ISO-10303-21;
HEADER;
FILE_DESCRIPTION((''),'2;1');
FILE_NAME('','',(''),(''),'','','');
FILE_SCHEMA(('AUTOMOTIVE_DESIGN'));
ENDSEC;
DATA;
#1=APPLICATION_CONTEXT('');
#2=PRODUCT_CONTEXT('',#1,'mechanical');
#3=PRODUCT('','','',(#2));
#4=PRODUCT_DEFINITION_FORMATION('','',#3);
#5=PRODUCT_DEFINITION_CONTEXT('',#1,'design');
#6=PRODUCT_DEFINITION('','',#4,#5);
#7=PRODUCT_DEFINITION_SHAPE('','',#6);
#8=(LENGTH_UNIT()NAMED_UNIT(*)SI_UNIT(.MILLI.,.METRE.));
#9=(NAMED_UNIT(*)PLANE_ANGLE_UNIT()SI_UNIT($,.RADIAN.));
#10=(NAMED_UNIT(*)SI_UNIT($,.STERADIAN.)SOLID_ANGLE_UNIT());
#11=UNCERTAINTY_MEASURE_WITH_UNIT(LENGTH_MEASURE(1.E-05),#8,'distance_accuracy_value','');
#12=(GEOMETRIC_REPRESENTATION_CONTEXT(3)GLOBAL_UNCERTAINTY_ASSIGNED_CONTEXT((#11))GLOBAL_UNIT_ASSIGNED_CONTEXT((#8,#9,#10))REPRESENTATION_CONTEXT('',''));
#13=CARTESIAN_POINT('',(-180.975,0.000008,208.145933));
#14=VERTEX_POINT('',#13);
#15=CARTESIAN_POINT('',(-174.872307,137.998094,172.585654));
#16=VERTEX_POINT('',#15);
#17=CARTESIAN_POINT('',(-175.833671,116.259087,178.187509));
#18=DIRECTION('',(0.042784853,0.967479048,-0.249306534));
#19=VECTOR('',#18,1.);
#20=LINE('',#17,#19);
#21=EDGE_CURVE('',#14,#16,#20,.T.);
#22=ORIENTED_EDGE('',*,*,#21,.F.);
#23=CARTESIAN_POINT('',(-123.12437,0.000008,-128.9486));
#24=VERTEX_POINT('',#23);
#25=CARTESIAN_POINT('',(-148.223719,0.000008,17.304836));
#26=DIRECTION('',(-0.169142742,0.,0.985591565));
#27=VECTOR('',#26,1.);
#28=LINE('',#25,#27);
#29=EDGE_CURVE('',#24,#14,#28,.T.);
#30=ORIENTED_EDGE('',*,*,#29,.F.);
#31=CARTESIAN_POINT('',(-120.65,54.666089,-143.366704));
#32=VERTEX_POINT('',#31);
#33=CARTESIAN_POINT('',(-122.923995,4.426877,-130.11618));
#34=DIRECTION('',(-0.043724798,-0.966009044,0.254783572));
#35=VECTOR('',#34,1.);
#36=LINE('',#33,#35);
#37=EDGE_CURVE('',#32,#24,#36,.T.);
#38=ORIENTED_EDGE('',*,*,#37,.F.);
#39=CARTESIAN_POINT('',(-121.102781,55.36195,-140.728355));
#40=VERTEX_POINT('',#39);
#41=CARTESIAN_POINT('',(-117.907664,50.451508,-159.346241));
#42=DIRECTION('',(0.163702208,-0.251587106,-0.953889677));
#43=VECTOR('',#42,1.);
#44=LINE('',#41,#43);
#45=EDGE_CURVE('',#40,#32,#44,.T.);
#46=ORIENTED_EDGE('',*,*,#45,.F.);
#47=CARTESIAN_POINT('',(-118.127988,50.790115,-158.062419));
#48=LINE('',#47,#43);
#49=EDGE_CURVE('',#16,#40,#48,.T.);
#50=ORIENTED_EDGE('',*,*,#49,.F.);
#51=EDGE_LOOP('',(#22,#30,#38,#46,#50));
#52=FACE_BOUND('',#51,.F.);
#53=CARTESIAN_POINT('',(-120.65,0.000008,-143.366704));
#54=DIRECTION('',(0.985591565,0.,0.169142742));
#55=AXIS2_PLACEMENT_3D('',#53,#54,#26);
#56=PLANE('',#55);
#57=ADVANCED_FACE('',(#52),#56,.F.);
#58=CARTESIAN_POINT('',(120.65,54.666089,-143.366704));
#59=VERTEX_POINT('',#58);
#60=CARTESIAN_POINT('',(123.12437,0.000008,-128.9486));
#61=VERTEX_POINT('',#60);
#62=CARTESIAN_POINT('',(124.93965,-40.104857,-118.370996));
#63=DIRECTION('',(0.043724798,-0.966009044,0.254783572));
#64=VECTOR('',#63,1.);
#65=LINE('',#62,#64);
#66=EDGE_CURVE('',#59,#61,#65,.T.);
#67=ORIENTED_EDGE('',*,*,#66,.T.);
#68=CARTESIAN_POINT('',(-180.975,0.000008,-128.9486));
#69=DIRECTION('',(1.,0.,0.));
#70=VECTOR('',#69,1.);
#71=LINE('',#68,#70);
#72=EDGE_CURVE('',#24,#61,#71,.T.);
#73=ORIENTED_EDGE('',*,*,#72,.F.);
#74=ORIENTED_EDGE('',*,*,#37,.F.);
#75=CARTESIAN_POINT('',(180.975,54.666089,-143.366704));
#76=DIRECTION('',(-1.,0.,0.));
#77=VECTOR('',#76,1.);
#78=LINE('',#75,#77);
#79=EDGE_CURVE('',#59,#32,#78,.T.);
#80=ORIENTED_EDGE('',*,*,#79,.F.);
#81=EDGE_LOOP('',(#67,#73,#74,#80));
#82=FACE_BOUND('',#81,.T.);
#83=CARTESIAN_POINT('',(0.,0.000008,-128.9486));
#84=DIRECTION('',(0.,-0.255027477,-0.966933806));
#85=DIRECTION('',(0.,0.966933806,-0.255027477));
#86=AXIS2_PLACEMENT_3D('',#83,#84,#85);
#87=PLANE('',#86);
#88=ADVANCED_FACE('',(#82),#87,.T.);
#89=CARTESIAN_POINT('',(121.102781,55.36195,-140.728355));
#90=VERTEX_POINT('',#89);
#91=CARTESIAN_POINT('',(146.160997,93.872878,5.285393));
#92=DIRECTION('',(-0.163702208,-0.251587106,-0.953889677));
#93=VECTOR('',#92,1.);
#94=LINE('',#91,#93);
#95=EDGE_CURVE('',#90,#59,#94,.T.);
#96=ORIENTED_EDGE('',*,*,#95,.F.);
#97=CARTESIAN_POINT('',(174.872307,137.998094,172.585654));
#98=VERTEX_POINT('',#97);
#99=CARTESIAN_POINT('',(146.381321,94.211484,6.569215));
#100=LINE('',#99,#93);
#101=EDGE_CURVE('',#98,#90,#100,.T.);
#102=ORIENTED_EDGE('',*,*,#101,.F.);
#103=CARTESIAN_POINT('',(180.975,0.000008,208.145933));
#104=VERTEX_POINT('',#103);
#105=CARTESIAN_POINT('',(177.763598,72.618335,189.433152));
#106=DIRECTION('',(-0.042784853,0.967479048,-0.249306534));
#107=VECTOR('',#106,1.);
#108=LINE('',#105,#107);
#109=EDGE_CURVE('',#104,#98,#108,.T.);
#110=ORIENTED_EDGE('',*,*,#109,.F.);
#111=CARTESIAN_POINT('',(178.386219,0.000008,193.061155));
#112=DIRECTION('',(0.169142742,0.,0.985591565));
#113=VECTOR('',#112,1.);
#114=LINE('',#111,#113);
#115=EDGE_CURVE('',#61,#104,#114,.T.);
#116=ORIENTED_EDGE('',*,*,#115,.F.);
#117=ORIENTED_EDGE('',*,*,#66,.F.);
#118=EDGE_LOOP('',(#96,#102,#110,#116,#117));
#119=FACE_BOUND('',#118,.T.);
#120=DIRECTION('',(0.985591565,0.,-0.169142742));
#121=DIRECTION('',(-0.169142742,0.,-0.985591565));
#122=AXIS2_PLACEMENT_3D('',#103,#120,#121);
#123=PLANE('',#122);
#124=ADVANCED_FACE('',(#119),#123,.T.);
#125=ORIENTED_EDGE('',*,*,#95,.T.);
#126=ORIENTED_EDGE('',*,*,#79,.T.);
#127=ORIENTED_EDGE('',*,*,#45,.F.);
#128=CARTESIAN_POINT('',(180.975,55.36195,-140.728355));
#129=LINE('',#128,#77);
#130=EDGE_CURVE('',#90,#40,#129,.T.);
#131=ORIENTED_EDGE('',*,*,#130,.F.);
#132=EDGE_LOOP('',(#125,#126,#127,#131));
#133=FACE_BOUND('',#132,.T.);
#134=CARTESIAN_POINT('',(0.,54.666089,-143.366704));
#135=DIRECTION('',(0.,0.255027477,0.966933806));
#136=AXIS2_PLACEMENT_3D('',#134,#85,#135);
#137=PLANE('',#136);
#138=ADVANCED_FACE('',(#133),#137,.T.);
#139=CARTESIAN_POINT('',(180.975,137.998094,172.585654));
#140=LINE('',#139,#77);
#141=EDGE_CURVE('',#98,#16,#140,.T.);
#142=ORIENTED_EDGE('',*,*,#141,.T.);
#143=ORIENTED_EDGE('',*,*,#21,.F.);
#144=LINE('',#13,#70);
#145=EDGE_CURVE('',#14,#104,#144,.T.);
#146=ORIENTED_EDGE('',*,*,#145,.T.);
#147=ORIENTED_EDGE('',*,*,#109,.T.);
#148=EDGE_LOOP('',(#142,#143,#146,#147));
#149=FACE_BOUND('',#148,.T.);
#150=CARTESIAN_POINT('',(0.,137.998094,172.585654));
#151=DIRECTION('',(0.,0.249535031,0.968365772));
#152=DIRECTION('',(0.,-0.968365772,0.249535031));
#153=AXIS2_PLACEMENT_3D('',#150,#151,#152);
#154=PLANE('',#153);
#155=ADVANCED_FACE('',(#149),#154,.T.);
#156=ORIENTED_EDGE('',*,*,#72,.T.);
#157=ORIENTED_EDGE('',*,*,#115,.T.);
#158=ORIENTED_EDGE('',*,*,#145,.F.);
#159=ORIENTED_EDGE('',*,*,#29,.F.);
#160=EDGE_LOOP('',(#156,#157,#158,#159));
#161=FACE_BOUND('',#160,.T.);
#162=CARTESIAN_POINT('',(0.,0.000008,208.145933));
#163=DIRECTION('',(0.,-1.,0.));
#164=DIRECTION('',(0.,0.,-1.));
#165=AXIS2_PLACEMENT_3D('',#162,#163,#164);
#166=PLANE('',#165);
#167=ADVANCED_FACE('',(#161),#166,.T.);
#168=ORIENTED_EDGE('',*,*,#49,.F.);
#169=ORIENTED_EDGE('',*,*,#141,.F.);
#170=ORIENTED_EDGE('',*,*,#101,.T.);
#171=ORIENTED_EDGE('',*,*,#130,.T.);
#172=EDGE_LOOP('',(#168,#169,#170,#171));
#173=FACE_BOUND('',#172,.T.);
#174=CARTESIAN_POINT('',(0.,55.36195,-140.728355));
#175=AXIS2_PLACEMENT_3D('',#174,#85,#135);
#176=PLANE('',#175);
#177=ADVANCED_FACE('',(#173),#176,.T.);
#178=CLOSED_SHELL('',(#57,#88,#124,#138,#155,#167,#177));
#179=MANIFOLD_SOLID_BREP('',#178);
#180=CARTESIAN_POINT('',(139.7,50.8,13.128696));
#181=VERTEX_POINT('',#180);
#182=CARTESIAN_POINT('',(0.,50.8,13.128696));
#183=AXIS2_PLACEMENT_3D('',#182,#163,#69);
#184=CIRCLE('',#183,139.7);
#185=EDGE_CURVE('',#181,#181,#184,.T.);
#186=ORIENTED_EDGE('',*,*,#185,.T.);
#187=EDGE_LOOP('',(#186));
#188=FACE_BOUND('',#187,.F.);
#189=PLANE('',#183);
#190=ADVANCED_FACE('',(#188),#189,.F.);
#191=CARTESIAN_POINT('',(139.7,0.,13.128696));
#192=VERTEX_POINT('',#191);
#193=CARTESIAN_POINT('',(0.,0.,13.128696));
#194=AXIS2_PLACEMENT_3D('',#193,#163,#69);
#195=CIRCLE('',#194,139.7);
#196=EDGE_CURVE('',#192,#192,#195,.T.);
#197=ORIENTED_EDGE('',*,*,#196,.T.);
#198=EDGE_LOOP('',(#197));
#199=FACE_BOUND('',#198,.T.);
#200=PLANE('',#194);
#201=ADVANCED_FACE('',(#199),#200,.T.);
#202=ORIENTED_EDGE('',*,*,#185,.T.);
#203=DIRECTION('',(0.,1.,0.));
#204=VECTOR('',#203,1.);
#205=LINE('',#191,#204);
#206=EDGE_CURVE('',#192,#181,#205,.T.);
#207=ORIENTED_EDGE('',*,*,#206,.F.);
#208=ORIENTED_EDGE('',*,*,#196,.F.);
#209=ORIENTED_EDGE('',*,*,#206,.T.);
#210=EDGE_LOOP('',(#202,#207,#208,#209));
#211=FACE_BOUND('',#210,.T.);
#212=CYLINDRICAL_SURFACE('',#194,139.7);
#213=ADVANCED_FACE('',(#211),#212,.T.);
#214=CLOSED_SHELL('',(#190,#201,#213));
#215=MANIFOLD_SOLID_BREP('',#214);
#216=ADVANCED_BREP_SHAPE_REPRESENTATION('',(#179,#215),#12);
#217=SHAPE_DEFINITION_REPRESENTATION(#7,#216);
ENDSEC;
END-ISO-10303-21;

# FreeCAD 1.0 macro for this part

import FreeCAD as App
import Part
import Sketcher

V = App.Vector
Q = App.Units.Quantity


def add_polygon(sketch, points):
    """Adds a closed chain of lines whose ends are joined by coincident constraints."""
    first, n = sketch.GeometryCount, len(points)
    for a, b in zip(points, points[1:] + points[:1]):
        sketch.addGeometry(Part.LineSegment(App.Vector(*a, 0), App.Vector(*b, 0)), False)
    for i in range(n):
        sketch.addConstraint(Sketcher.Constraint("Coincident", first + i, 2, first + (i + 1) % n, 1))

doc = App.newDocument("Part")
body = doc.addObject("PartDesign::Body", "Body")

sketch1 = body.newObject("Sketcher::SketchObject", "Sketch")
sketch1.AttachmentSupport = (doc.getObject("YZ_Plane"), [""])
sketch1.MapMode = "FlatFace"
add_polygon(sketch1, [(96.7012, 199.12078), (-41.296887, 234.681059), (-41.296887, -102.413474), (13.369194, -116.831578), (14.065055, -114.193229)])
sketch1.addConstraint([
    Sketcher.Constraint("Vertical", 1),
    Sketcher.Constraint("Perpendicular", 2, 3),
    Sketcher.Constraint("Parallel", 3, 4),
    Sketcher.Constraint("Angle", 0, Q("165.550001 deg")),
    Sketcher.Constraint("DistanceX", -1, 1, 4, 2, Q("96.7012 mm")),
    Sketcher.Constraint("Distance", 0, Q("142.506159 mm")),
    Sketcher.Constraint("DistanceY", 1, 2, 1, 1, Q("337.094533 mm")),
    Sketcher.Constraint("DistanceY", -1, 1, 0, 2, Q("234.681059 mm")),
    Sketcher.Constraint("DistanceY", 2, 2, -1, 1, Q("116.831578 mm")),
    Sketcher.Constraint("DistanceY", 3, 2, -1, 1, Q("114.193229 mm")),
])
pad1 = body.newObject("PartDesign::Pad", "Pad")
pad1.Profile = sketch1
pad1.Length = Q("14.25 in")
pad1.Midplane = True
body2 = doc.addObject("PartDesign::Body", "Body001")
doc.recompute()

body.Placement = App.Placement(V(0, 41.296895, -26.535126), App.Rotation(V(0, 0, 1), 0))
boolean = body2.newObject("PartDesign::Boolean", "Boolean")
boolean.Type = "Fuse"
boolean.addObjects([body])

sketch2 = body2.newObject("Sketcher::SketchObject", "Sketch001")
sketch2.AttachmentSupport = (doc.getObject("XZ_Plane001"), [""])
sketch2.MapMode = "FlatFace"
sketch2.AttachmentOffset = App.Placement(V(0, 0, -0.000008), App.Rotation())
add_polygon(sketch2, [(180.975, 208.145933), (120.65, -143.366704), (410.697224, -143.366704)])
add_polygon(sketch2, [(-410.697224, -143.366704), (-120.65, -143.366704), (-180.975, 208.145933)])
sketch2.addConstraint([
    Sketcher.Constraint("Horizontal", 1),
    Sketcher.Constraint("Horizontal", 3),
    Sketcher.Constraint("Symmetric", 0, 2, 3, 2, -2),
    Sketcher.Constraint("Symmetric", 2, 2, 4, 2, -2),
    Sketcher.Constraint("Equal", 1, 3),
    Sketcher.Constraint("DistanceX", 3, 2, 0, 2, Q("9.5 in")),
    Sketcher.Constraint("DistanceX", 4, 2, 2, 2, Q("14.25 in")),
    Sketcher.Constraint("DistanceX", 1, 1, 1, 2, Q("290.047224 mm")),
    Sketcher.Constraint("Distance", 0, Q("356.651426 mm")),
    Sketcher.Constraint("DistanceY", 0, 2, -1, 1, Q("143.366704 mm")),
])
pocket1 = body2.newObject("PartDesign::Pocket", "Pocket")
pocket1.Profile = sketch2
pocket1.Length = Q("12 in")
pocket1.Midplane = True
body3 = doc.addObject("PartDesign::Body", "Body002")

sketch3 = body3.newObject("Sketcher::SketchObject", "Sketch002")
sketch3.AttachmentSupport = (doc.getObject("XZ_Plane002"), [""])
sketch3.MapMode = "FlatFace"
sketch3.addGeometry(Part.Circle(V(0, 13.128696, 0), V(0, 0, 1), 139.7), False)
sketch3.addConstraint([
    Sketcher.Constraint("PointOnObject", 0, 3, -2),
    Sketcher.Constraint("Diameter", 0, Q("11 in")),
    Sketcher.Constraint("DistanceY", -1, 1, 0, 3, Q("13.128696 mm")),
])
pad2 = body3.newObject("PartDesign::Pad", "Pad001")
pad2.Profile = sketch3
pad2.Length = Q("2 in")
pad2.Reversed = True

doc.recompute()
